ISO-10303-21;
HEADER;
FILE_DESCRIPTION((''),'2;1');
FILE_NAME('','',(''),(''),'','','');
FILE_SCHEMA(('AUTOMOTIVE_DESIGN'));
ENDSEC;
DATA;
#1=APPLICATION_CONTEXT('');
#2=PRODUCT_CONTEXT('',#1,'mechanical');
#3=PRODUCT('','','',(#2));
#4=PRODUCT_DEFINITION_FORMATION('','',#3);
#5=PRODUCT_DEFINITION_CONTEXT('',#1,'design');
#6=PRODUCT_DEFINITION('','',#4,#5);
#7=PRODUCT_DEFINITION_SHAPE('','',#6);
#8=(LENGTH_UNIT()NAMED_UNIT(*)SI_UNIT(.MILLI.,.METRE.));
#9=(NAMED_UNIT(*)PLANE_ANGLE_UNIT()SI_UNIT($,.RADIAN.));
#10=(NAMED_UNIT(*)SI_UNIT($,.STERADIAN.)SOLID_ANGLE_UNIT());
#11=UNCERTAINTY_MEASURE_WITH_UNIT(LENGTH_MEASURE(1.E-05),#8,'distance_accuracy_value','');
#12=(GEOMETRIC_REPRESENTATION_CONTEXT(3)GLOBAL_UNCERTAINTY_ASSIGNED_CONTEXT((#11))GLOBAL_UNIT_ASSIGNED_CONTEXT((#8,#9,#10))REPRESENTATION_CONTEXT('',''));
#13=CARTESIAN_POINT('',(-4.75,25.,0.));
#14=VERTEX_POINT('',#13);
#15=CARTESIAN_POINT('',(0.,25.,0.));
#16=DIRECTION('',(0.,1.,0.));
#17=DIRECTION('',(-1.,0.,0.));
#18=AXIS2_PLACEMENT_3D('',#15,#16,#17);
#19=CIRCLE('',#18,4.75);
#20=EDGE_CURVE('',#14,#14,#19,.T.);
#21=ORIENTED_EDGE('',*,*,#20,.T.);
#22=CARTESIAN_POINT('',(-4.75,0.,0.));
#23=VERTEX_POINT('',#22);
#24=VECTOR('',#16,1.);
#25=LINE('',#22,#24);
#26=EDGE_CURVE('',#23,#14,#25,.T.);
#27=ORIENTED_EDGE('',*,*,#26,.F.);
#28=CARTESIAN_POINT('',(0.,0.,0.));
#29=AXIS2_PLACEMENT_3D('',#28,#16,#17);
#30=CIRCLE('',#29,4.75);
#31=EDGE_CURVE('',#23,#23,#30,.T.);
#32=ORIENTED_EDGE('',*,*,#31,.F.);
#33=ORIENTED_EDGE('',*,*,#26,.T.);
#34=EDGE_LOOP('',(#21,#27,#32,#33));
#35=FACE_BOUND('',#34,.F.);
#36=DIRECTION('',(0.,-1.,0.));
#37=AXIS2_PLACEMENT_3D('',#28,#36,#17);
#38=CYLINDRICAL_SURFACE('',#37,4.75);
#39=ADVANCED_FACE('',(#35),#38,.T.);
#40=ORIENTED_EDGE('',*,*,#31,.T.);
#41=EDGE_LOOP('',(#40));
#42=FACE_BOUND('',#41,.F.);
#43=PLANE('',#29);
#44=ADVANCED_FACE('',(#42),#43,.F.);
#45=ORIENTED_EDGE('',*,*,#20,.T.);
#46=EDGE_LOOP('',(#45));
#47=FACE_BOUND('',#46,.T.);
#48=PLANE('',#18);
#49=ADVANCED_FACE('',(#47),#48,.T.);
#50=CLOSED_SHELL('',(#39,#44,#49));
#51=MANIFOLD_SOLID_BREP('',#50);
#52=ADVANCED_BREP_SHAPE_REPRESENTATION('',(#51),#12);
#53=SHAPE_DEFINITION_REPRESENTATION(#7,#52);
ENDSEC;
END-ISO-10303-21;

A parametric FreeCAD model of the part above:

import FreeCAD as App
import Part
import Sketcher
Q = App.Units.Quantity

doc = App.newDocument("Part")
body = doc.addObject("PartDesign::Body", "Body")

# Sketch on XZ plane
sketch1 = body.newObject("Sketcher::SketchObject", "Sketch")
sketch1.AttachmentSupport = (doc.getObject("XZ_Plane"), [""])
sketch1.MapMode = "FlatFace"
sketch1.addGeometry(Part.Circle(App.Vector(0, 0, 0), App.Vector(0, 0, 1), 4.75), False)
sketch1.addConstraint([
    Sketcher.Constraint("Coincident", 0, 3, -1, 1),
    Sketcher.Constraint("Diameter", 0, Q("9.5 mm")),
])
pad1 = body.newObject("PartDesign::Pad", "Pad")
pad1.Profile = sketch1
pad1.Length = 25
pad1.Reversed = True

doc.recompute()
